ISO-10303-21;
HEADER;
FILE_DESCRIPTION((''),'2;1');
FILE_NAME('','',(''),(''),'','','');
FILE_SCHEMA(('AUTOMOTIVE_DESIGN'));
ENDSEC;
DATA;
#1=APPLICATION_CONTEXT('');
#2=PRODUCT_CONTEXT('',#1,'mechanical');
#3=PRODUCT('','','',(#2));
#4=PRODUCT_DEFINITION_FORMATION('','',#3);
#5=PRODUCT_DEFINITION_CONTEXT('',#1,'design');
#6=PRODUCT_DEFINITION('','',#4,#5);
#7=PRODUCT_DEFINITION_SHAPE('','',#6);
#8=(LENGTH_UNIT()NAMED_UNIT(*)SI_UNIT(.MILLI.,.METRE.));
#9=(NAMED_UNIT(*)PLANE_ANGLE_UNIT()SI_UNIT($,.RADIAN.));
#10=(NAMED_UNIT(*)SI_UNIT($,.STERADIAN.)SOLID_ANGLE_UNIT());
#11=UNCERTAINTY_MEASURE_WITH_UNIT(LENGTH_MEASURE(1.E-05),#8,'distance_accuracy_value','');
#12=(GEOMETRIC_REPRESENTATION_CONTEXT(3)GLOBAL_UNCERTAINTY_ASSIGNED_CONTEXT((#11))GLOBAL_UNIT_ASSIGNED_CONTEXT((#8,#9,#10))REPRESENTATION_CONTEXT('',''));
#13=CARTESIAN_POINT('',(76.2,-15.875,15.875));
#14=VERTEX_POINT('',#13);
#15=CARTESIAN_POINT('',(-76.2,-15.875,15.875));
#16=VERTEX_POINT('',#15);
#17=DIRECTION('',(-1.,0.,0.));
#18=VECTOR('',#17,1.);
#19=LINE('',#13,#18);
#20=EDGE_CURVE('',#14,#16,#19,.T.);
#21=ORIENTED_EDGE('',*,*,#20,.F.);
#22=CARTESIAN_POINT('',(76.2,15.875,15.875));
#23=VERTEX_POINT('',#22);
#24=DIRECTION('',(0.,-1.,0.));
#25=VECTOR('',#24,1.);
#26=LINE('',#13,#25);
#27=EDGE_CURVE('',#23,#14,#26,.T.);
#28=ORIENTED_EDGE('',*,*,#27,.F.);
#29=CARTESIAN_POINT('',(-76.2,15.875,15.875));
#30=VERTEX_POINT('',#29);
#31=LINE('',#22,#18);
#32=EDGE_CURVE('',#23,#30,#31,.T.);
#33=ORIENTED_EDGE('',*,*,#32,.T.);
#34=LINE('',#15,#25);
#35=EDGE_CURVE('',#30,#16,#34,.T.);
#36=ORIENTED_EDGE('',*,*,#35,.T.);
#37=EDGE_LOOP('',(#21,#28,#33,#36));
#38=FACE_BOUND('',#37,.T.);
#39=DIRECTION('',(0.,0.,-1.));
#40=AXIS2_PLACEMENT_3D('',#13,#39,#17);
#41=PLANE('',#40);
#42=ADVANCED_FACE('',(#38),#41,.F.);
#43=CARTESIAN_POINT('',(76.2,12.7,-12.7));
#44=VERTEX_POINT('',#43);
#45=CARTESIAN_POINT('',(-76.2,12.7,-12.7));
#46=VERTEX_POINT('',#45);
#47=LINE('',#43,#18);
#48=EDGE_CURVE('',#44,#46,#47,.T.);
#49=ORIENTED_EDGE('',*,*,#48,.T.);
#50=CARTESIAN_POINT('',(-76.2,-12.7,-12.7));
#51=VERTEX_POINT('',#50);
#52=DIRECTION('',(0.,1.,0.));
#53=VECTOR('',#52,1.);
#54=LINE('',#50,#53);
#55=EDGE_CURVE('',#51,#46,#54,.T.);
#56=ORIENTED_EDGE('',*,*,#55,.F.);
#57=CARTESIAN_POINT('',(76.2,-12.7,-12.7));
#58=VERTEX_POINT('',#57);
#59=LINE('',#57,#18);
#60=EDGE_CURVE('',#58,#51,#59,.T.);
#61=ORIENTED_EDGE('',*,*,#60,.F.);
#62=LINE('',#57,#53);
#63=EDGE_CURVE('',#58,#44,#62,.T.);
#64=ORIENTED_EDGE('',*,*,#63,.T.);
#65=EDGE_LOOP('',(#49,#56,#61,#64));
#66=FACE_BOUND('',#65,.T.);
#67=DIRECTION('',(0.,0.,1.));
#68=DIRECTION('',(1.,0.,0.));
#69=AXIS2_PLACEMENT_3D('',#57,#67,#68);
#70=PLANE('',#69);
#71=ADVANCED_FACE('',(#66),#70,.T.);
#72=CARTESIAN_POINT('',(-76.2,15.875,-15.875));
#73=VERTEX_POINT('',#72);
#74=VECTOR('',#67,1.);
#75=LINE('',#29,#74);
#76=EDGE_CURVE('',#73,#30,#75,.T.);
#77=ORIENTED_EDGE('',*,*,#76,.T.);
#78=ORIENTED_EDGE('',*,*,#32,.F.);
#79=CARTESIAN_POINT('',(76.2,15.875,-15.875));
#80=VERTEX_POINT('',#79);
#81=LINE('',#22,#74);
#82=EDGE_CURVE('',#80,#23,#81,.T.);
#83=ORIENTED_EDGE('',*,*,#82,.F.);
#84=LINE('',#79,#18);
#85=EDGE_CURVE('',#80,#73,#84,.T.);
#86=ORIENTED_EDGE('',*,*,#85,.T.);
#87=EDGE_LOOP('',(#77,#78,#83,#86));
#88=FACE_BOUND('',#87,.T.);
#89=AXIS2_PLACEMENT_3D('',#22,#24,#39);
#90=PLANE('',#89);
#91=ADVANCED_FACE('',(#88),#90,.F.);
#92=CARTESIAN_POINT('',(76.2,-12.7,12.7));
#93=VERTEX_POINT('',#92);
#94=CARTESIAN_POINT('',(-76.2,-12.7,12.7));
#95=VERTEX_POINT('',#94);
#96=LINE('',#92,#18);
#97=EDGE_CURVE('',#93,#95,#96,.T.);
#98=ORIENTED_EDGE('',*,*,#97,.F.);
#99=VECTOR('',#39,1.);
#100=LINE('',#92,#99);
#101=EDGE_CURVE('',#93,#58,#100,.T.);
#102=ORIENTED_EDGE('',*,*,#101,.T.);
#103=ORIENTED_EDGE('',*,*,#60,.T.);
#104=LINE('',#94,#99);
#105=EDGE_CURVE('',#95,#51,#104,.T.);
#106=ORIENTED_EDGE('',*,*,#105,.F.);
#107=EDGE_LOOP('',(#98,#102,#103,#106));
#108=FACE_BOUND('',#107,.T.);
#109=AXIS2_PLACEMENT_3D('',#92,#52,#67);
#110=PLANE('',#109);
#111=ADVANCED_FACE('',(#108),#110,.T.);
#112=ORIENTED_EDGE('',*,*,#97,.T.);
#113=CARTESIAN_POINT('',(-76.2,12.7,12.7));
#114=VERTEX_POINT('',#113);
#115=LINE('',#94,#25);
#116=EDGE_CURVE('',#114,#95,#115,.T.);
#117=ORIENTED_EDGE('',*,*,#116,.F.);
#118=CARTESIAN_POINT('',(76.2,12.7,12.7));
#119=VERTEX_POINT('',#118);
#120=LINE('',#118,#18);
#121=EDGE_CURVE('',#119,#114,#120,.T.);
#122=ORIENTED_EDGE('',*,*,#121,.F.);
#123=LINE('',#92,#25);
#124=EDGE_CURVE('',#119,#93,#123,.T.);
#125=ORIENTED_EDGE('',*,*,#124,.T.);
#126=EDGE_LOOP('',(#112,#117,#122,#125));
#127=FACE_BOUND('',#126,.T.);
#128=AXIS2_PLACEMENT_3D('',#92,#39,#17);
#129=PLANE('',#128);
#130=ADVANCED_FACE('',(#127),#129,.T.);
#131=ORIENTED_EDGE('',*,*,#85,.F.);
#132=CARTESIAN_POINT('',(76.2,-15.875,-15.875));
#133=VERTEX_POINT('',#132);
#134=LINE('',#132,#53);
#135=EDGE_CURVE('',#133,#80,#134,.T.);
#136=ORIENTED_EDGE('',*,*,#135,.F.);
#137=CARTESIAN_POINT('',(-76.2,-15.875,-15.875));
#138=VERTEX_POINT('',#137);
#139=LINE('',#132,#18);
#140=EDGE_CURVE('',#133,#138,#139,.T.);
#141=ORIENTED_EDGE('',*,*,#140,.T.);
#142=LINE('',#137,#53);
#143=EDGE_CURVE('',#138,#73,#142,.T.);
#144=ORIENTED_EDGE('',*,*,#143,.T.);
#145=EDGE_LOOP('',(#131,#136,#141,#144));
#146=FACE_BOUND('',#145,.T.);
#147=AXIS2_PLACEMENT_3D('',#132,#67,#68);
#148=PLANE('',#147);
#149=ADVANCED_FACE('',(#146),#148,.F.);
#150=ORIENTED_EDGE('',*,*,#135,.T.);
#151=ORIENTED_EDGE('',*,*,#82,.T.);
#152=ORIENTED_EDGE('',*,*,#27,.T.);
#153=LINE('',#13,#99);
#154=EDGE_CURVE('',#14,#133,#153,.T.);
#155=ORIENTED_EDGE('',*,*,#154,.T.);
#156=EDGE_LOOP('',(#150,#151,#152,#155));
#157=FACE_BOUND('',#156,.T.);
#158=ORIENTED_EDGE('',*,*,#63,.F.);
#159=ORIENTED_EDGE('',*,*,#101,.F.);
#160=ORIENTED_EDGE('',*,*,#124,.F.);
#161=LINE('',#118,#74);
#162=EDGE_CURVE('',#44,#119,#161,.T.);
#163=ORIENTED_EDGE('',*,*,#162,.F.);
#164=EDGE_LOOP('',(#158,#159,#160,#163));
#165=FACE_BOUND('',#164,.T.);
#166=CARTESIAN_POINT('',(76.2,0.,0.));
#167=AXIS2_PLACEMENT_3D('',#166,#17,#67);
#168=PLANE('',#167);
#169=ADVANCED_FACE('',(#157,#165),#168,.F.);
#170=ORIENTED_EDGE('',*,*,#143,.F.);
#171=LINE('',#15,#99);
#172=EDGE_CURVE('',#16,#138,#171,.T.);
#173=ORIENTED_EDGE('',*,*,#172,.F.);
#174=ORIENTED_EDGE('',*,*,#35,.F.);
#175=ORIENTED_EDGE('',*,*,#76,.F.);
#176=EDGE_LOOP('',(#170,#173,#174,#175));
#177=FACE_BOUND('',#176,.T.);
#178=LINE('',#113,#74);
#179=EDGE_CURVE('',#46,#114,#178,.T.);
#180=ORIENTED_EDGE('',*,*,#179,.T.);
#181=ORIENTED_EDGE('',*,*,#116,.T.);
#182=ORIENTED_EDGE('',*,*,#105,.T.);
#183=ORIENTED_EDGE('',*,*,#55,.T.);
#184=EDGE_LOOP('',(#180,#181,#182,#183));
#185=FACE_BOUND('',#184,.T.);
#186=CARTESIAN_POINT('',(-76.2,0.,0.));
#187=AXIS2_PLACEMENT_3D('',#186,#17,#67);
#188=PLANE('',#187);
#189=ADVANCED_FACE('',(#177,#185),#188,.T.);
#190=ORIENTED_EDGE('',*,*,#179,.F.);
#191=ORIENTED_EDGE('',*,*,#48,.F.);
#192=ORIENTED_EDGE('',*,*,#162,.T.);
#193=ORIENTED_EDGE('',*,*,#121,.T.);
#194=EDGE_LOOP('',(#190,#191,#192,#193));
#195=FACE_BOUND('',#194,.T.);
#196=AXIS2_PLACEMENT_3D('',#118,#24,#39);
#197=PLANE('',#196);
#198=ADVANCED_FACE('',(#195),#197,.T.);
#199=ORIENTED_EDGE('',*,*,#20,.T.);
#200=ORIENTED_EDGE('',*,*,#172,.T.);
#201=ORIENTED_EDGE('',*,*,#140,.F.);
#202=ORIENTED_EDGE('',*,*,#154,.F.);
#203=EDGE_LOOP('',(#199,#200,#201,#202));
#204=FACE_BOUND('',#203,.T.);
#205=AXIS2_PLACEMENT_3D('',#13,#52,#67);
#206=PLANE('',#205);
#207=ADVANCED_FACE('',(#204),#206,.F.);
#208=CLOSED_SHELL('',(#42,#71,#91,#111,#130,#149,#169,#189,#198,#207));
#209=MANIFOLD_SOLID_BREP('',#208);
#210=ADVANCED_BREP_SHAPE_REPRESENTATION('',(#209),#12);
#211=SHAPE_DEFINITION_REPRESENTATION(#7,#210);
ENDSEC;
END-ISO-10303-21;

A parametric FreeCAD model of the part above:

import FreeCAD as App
import Part
import Sketcher
from FreeCAD import Vector
Q = App.Units.Quantity

doc = App.newDocument("Part")
body = doc.addObject("PartDesign::Body", "Body")

# Sketch on YZ plane
sketch1 = body.newObject("Sketcher::SketchObject", "Sketch")
sketch1.AttachmentSupport = (doc.getObject("YZ_Plane"), [""])
sketch1.MapMode = "FlatFace"
sketch1.addGeometry(Part.LineSegment(Vector(16, 16, 0), Vector(-16, 16, 0)), False)
sketch1.addGeometry(Part.LineSegment(Vector(-16, 16, 0), Vector(-16, -16, 0)), False)
sketch1.addGeometry(Part.LineSegment(Vector(-16, -16, 0), Vector(16, -16, 0)), False)
sketch1.addGeometry(Part.LineSegment(Vector(16, -16, 0), Vector(16, 16, 0)), False)
sketch1.addGeometry(Part.LineSegment(Vector(-13, -13, 0), Vector(-13, 13, 0)), False)
sketch1.addGeometry(Part.LineSegment(Vector(-13, 13, 0), Vector(13, 13, 0)), False)
sketch1.addGeometry(Part.LineSegment(Vector(13, 13, 0), Vector(13, -13, 0)), False)
sketch1.addGeometry(Part.LineSegment(Vector(13, -13, 0), Vector(-13, -13, 0)), False)
sketch1.addConstraint(Sketcher.Constraint("Coincident", 0, 2, 1, 1))
sketch1.addConstraint(Sketcher.Constraint("Coincident", 1, 2, 2, 1))
sketch1.addConstraint(Sketcher.Constraint("Coincident", 2, 2, 3, 1))
sketch1.addConstraint(Sketcher.Constraint("Coincident", 3, 2, 0, 1))
sketch1.addConstraint(Sketcher.Constraint("Coincident", 4, 2, 5, 1))
sketch1.addConstraint(Sketcher.Constraint("Coincident", 5, 2, 6, 1))
sketch1.addConstraint(Sketcher.Constraint("Coincident", 6, 2, 7, 1))
sketch1.addConstraint(Sketcher.Constraint("Coincident", 7, 2, 4, 1))
sketch1.addConstraint(Sketcher.Constraint("Horizontal", 0))
sketch1.addConstraint(Sketcher.Constraint("Vertical", 1))
sketch1.addConstraint(Sketcher.Constraint("Horizontal", 2))
sketch1.addConstraint(Sketcher.Constraint("Vertical", 3))
sketch1.addConstraint(Sketcher.Constraint("Vertical", 4))
sketch1.addConstraint(Sketcher.Constraint("Horizontal", 5))
sketch1.addConstraint(Sketcher.Constraint("Vertical", 6))
sketch1.addConstraint(Sketcher.Constraint("Horizontal", 7))
sketch1.addConstraint(Sketcher.Constraint("Symmetric", 0, 2, 2, 2, -1, 1))
sketch1.addConstraint(Sketcher.Constraint("Symmetric", 4, 2, 6, 2, -1, 1))
sketch1.addConstraint(Sketcher.Constraint("Equal", 2, 1))
sketch1.addConstraint(Sketcher.Constraint("Equal", 7, 4))
sketch1.addConstraint(Sketcher.Constraint("DistanceX", 5, 1, 5, 2, Q("1 in")))
sketch1.addConstraint(Sketcher.Constraint("DistanceX", 0, 2, 0, 1, Q("1.25 in")))
pad1 = body.newObject("PartDesign::Pad", "Pad")
pad1.Profile = sketch1
pad1.Length = Q("6 in")
pad1.Midplane = True

doc.recompute()
